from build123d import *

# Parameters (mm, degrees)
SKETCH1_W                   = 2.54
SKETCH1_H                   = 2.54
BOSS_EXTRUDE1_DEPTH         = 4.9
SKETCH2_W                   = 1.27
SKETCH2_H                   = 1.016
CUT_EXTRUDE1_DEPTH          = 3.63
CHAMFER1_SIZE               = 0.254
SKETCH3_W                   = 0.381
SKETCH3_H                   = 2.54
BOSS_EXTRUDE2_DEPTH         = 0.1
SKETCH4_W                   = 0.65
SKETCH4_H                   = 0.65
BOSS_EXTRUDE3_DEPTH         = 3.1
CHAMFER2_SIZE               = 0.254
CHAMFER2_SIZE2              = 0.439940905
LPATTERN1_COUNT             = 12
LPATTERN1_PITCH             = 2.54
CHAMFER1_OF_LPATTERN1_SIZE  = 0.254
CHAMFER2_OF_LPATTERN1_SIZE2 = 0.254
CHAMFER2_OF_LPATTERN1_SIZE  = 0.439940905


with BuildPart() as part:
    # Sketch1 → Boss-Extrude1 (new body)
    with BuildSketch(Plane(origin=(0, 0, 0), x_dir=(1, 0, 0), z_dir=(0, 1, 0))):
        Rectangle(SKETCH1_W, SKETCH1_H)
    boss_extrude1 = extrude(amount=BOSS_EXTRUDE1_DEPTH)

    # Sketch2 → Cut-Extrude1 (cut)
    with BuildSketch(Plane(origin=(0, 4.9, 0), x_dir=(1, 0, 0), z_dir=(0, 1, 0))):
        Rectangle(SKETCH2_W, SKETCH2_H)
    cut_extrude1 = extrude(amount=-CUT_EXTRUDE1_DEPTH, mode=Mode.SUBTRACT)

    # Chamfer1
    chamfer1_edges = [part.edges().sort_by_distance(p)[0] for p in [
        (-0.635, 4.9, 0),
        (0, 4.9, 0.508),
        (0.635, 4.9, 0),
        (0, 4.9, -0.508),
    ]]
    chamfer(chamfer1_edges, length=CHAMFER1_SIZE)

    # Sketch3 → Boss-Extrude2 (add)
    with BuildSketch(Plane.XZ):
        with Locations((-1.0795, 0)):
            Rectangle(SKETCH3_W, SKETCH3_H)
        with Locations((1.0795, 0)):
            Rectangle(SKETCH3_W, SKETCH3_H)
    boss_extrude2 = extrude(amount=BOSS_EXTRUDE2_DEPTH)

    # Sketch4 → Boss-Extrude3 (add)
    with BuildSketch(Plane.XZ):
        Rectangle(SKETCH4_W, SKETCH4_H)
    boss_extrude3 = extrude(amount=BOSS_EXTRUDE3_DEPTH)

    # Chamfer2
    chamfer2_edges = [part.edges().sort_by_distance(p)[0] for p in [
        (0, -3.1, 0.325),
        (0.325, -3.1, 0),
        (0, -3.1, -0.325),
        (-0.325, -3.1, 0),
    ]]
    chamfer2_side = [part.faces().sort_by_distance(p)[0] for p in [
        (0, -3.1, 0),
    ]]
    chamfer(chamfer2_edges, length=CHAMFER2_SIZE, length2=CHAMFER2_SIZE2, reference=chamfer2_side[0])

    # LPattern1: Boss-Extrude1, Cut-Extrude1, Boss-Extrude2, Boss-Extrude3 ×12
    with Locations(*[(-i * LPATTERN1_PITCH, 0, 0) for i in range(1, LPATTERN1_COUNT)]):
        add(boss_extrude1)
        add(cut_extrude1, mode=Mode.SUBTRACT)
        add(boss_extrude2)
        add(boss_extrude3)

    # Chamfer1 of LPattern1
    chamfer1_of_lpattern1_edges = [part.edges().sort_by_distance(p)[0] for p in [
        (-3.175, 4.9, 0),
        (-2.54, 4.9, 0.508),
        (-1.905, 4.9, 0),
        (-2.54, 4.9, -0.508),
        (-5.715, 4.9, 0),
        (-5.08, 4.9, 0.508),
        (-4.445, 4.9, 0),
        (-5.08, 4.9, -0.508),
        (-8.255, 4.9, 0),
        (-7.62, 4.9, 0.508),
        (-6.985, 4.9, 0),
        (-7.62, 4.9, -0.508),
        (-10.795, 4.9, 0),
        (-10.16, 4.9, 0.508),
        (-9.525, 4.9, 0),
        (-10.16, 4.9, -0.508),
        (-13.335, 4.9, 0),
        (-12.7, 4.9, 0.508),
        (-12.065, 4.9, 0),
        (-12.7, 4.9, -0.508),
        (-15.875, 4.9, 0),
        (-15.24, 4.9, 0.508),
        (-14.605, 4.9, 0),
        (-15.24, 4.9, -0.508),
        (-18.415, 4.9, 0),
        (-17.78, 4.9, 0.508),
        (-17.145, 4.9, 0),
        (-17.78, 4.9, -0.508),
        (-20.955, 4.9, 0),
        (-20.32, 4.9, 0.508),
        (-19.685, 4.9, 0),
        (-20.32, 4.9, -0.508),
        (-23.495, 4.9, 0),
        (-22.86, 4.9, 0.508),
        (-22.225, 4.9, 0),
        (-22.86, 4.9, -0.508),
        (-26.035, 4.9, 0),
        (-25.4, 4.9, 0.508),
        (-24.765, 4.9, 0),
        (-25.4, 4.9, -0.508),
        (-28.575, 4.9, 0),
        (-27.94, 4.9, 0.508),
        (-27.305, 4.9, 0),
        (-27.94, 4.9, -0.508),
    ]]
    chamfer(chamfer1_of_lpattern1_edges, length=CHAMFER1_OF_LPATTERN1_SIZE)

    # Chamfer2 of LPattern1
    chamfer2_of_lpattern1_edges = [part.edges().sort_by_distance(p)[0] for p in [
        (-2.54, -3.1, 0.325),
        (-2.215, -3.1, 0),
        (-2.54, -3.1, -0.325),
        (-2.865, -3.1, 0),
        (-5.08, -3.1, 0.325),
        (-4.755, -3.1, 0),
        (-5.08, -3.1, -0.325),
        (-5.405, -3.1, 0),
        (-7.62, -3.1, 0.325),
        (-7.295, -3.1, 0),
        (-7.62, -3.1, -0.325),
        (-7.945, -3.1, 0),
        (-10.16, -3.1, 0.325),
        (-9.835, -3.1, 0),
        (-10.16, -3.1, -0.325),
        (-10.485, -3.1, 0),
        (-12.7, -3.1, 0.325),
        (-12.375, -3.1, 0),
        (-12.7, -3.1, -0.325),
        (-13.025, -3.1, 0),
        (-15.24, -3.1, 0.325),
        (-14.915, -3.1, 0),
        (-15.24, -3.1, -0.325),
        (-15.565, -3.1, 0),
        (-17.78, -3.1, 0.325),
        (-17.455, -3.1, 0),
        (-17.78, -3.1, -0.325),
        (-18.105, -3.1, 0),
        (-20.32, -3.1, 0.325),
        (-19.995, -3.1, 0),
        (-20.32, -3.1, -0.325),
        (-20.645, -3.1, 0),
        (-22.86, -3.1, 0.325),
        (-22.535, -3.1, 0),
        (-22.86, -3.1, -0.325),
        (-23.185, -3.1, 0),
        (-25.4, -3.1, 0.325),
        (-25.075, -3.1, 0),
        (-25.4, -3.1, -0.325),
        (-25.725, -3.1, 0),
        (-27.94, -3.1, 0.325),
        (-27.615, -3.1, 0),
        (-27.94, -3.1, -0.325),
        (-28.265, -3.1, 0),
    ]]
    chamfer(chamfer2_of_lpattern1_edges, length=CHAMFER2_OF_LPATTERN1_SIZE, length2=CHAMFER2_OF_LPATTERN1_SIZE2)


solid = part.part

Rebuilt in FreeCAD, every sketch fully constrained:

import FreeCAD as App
import Part
import Sketcher
Q = App.Units.Quantity


def edges_at(feature, points):
    """Names of the edges that pass closest to the given points."""
    edges = feature.Shape.Edges
    near = lambda p: min(range(len(edges)), key=lambda i: edges[i].distToShape(Part.Vertex(*p))[0])
    return sorted({f"Edge{near(p) + 1}" for p in points})


def add_polygon(sketch, points):
    """Adds a closed chain of lines whose ends are joined by coincident constraints."""
    first, n = sketch.GeometryCount, len(points)
    for a, b in zip(points, points[1:] + points[:1]):
        sketch.addGeometry(Part.LineSegment(App.Vector(*a, 0), App.Vector(*b, 0)), False)
    for i in range(n):
        sketch.addConstraint(Sketcher.Constraint("Coincident", first + i, 2, first + (i + 1) % n, 1))

doc = App.newDocument("Part")
body = doc.addObject("PartDesign::Body", "Body")

# Sketch on XZ plane
sketch1 = body.newObject("Sketcher::SketchObject", "Sketch")
sketch1.AttachmentSupport = (doc.getObject("XZ_Plane"), [""])
sketch1.MapMode = "FlatFace"
add_polygon(sketch1, [(-1.27, -1.27), (-1.27, 1.27), (1.27, 1.27), (1.27, -1.27)])  # lines 0-3
sketch1.addConstraint([
    Sketcher.Constraint("Vertical", 0),
    Sketcher.Constraint("Horizontal", 1),
    Sketcher.Constraint("Vertical", 2),
    Sketcher.Constraint("Horizontal", 3),
    Sketcher.Constraint("Symmetric", 0, 2, 2, 2, -1, 1),
    Sketcher.Constraint("Equal", 3, 0),
    Sketcher.Constraint("DistanceX", 1, 1, 1, 2, Q("0.1 in")),
])
pad1 = body.newObject("PartDesign::Pad", "Pad")
pad1.Profile = sketch1
pad1.Length = 4.9
pad1.Reversed = True

# Sketch on XZ plane
sketch2 = body.newObject("Sketcher::SketchObject", "Sketch001")
sketch2.AttachmentSupport = (doc.getObject("XZ_Plane"), [""])
sketch2.MapMode = "FlatFace"
sketch2.AttachmentOffset = App.Placement(App.Vector(0, 0, -4.9), App.Rotation())
add_polygon(sketch2, [(-0.635, -0.508), (-0.635, 0.508), (0.635, 0.508), (0.635, -0.508)])  # lines 0-3
sketch2.addConstraint([
    Sketcher.Constraint("Vertical", 0),
    Sketcher.Constraint("Horizontal", 1),
    Sketcher.Constraint("Vertical", 2),
    Sketcher.Constraint("Horizontal", 3),
    Sketcher.Constraint("Symmetric", 0, 2, 2, 2, -1, 1),
    Sketcher.Constraint("DistanceX", 1, 1, 1, 2, Q("0.05 in")),
    Sketcher.Constraint("DistanceY", 0, 1, 0, 2, Q("0.04 in")),
])
pocket1 = body.newObject("PartDesign::Pocket", "Pocket")
pocket1.Profile = sketch2
pocket1.Length = 3.63
pocket1.Reversed = True
doc.recompute()

chamfer = body.newObject("PartDesign::Chamfer", "Chamfer")
chamfer.Base = (pocket1, edges_at(pocket1, [
    (-0.635, 4.9, 0),
    (0, 4.9, 0.508),
    (0.635, 4.9, 0),
    (0, 4.9, -0.508),
]))
chamfer.Size = Q("0.01 in")

# Sketch on XZ plane
sketch3 = body.newObject("Sketcher::SketchObject", "Sketch002")
sketch3.AttachmentSupport = (doc.getObject("XZ_Plane"), [""])
sketch3.MapMode = "FlatFace"
add_polygon(sketch3, [(-1.27, 1.27), (-1.27, -1.27), (-0.889, -1.27), (-0.889, 1.27)])  # lines 0-3
add_polygon(sketch3, [(0.889, 1.27), (0.889, -1.27), (1.27, -1.27), (1.27, 1.27)])  # lines 4-7
sketch3.addConstraint([
    Sketcher.Constraint("Vertical", 0),
    Sketcher.Constraint("Horizontal", 1),
    Sketcher.Constraint("Vertical", 2),
    Sketcher.Constraint("Horizontal", 3),
    Sketcher.Constraint("Vertical", 4),
    Sketcher.Constraint("Horizontal", 5),
    Sketcher.Constraint("Vertical", 6),
    Sketcher.Constraint("Horizontal", 7),
    Sketcher.Constraint("Symmetric", 2, 2, 4, 2, -1, 1),
    Sketcher.Constraint("Symmetric", 0, 2, 6, 2, -1, 1),
    Sketcher.Constraint("Horizontal", 1, 2, 4, 2),
    Sketcher.Constraint("DistanceY", 0, 2, 0, 1, Q("0.1 in")),
    Sketcher.Constraint("DistanceX", 0, 2, 5, 2, Q("0.1 in")),
    Sketcher.Constraint("DistanceX", 1, 1, 1, 2, Q("0.015 in")),
])
pad2 = body.newObject("PartDesign::Pad", "Pad001")
pad2.Profile = sketch3
pad2.Length = 0.1

# Sketch on XZ plane
sketch4 = body.newObject("Sketcher::SketchObject", "Sketch003")
sketch4.AttachmentSupport = (doc.getObject("XZ_Plane"), [""])
sketch4.MapMode = "FlatFace"
add_polygon(sketch4, [(-0.325, 0.325), (-0.325, -0.325), (0.325, -0.325), (0.325, 0.325)])  # lines 0-3
sketch4.addConstraint([
    Sketcher.Constraint("Vertical", 0),
    Sketcher.Constraint("Horizontal", 1),
    Sketcher.Constraint("Vertical", 2),
    Sketcher.Constraint("Horizontal", 3),
    Sketcher.Constraint("Symmetric", 0, 2, 2, 2, -1, 1),
    Sketcher.Constraint("Equal", 3, 0),
    Sketcher.Constraint("DistanceX", 1, 1, 1, 2, Q("0.65 mm")),
])
pad3 = body.newObject("PartDesign::Pad", "Pad002")
pad3.Profile = sketch4
pad3.Length = 3.1
doc.recompute()

chamfer2 = body.newObject("PartDesign::Chamfer", "Chamfer001")
chamfer2.Base = (pad3, edges_at(pad3, [
    (0, -3.1, 0.325),
    (0.325, -3.1, 0),
    (0, -3.1, -0.325),
    (-0.325, -3.1, 0),
]))
chamfer2.ChamferType = "Two distances"
chamfer2.Size = Q("0.01 in")
chamfer2.Size2 = 0.439941
chamfer2.FlipDirection = True
doc.recompute()

linearpattern = body.newObject("PartDesign::LinearPattern", "LinearPattern")
linearpattern.Originals = [pad1, pocket1, pad2, pad3]
linearpattern.Direction = (doc.getObject("X_Axis"), [""])
linearpattern.Mode = "offset"
linearpattern.Offset = Q("0.1 in")
linearpattern.Occurrences = 12
linearpattern.Reversed = True
body.Tip = linearpattern
doc.recompute()

chamfer3 = body.newObject("PartDesign::Chamfer", "Chamfer002")
chamfer3.Base = (linearpattern, edges_at(linearpattern, [
    (-3.175, 4.9, 0),
    (-2.54, 4.9, 0.508),
    (-1.905, 4.9, 0),
    (-2.54, 4.9, -0.508),
    (-5.715, 4.9, 0),
    (-5.08, 4.9, 0.508),
    (-4.445, 4.9, 0),
    (-5.08, 4.9, -0.508),
    (-8.255, 4.9, 0),
    (-7.62, 4.9, 0.508),
    (-6.985, 4.9, 0),
    (-7.62, 4.9, -0.508),
    (-10.795, 4.9, 0),
    (-10.16, 4.9, 0.508),
    (-9.525, 4.9, 0),
    (-10.16, 4.9, -0.508),
    (-13.335, 4.9, 0),
    (-12.7, 4.9, 0.508),
    (-12.065, 4.9, 0),
    (-12.7, 4.9, -0.508),
    (-15.875, 4.9, 0),
    (-15.24, 4.9, 0.508),
    (-14.605, 4.9, 0),
    (-15.24, 4.9, -0.508),
    (-18.415, 4.9, 0),
    (-17.78, 4.9, 0.508),
    (-17.145, 4.9, 0),
    (-17.78, 4.9, -0.508),
    (-20.955, 4.9, 0),
    (-20.32, 4.9, 0.508),
    (-19.685, 4.9, 0),
    (-20.32, 4.9, -0.508),
    (-23.495, 4.9, 0),
    (-22.86, 4.9, 0.508),
    (-22.225, 4.9, 0),
    (-22.86, 4.9, -0.508),
    (-26.035, 4.9, 0),
    (-25.4, 4.9, 0.508),
    (-24.765, 4.9, 0),
    (-25.4, 4.9, -0.508),
    (-28.575, 4.9, 0),
    (-27.94, 4.9, 0.508),
    (-27.305, 4.9, 0),
    (-27.94, 4.9, -0.508),
]))
chamfer3.Size = Q("0.01 in")
doc.recompute()

chamfer4 = body.newObject("PartDesign::Chamfer", "Chamfer003")
chamfer4.Base = (chamfer3, edges_at(chamfer3, [
    (-2.54, -3.1, 0.325),
    (-2.215, -3.1, 0),
    (-2.54, -3.1, -0.325),
    (-2.865, -3.1, 0),
    (-5.08, -3.1, 0.325),
    (-4.755, -3.1, 0),
    (-5.08, -3.1, -0.325),
    (-5.405, -3.1, 0),
    (-7.62, -3.1, 0.325),
    (-7.295, -3.1, 0),
    (-7.62, -3.1, -0.325),
    (-7.945, -3.1, 0),
    (-10.16, -3.1, 0.325),
    (-9.835, -3.1, 0),
    (-10.16, -3.1, -0.325),
    (-10.485, -3.1, 0),
    (-12.7, -3.1, 0.325),
    (-12.375, -3.1, 0),
    (-12.7, -3.1, -0.325),
    (-13.025, -3.1, 0),
    (-15.24, -3.1, 0.325),
    (-14.915, -3.1, 0),
    (-15.24, -3.1, -0.325),
    (-15.565, -3.1, 0),
    (-17.78, -3.1, 0.325),
    (-17.455, -3.1, 0),
    (-17.78, -3.1, -0.325),
    (-18.105, -3.1, 0),
    (-20.32, -3.1, 0.325),
    (-19.995, -3.1, 0),
    (-20.32, -3.1, -0.325),
    (-20.645, -3.1, 0),
    (-22.86, -3.1, 0.325),
    (-22.535, -3.1, 0),
    (-22.86, -3.1, -0.325),
    (-23.185, -3.1, 0),
    (-25.4, -3.1, 0.325),
    (-25.075, -3.1, 0),
    (-25.4, -3.1, -0.325),
    (-25.725, -3.1, 0),
    (-27.94, -3.1, 0.325),
    (-27.615, -3.1, 0),
    (-27.94, -3.1, -0.325),
    (-28.265, -3.1, 0),
]))
chamfer4.ChamferType = "Two distances"
chamfer4.Size = 0.439941
chamfer4.Size2 = Q("0.01 in")

doc.recompute()
